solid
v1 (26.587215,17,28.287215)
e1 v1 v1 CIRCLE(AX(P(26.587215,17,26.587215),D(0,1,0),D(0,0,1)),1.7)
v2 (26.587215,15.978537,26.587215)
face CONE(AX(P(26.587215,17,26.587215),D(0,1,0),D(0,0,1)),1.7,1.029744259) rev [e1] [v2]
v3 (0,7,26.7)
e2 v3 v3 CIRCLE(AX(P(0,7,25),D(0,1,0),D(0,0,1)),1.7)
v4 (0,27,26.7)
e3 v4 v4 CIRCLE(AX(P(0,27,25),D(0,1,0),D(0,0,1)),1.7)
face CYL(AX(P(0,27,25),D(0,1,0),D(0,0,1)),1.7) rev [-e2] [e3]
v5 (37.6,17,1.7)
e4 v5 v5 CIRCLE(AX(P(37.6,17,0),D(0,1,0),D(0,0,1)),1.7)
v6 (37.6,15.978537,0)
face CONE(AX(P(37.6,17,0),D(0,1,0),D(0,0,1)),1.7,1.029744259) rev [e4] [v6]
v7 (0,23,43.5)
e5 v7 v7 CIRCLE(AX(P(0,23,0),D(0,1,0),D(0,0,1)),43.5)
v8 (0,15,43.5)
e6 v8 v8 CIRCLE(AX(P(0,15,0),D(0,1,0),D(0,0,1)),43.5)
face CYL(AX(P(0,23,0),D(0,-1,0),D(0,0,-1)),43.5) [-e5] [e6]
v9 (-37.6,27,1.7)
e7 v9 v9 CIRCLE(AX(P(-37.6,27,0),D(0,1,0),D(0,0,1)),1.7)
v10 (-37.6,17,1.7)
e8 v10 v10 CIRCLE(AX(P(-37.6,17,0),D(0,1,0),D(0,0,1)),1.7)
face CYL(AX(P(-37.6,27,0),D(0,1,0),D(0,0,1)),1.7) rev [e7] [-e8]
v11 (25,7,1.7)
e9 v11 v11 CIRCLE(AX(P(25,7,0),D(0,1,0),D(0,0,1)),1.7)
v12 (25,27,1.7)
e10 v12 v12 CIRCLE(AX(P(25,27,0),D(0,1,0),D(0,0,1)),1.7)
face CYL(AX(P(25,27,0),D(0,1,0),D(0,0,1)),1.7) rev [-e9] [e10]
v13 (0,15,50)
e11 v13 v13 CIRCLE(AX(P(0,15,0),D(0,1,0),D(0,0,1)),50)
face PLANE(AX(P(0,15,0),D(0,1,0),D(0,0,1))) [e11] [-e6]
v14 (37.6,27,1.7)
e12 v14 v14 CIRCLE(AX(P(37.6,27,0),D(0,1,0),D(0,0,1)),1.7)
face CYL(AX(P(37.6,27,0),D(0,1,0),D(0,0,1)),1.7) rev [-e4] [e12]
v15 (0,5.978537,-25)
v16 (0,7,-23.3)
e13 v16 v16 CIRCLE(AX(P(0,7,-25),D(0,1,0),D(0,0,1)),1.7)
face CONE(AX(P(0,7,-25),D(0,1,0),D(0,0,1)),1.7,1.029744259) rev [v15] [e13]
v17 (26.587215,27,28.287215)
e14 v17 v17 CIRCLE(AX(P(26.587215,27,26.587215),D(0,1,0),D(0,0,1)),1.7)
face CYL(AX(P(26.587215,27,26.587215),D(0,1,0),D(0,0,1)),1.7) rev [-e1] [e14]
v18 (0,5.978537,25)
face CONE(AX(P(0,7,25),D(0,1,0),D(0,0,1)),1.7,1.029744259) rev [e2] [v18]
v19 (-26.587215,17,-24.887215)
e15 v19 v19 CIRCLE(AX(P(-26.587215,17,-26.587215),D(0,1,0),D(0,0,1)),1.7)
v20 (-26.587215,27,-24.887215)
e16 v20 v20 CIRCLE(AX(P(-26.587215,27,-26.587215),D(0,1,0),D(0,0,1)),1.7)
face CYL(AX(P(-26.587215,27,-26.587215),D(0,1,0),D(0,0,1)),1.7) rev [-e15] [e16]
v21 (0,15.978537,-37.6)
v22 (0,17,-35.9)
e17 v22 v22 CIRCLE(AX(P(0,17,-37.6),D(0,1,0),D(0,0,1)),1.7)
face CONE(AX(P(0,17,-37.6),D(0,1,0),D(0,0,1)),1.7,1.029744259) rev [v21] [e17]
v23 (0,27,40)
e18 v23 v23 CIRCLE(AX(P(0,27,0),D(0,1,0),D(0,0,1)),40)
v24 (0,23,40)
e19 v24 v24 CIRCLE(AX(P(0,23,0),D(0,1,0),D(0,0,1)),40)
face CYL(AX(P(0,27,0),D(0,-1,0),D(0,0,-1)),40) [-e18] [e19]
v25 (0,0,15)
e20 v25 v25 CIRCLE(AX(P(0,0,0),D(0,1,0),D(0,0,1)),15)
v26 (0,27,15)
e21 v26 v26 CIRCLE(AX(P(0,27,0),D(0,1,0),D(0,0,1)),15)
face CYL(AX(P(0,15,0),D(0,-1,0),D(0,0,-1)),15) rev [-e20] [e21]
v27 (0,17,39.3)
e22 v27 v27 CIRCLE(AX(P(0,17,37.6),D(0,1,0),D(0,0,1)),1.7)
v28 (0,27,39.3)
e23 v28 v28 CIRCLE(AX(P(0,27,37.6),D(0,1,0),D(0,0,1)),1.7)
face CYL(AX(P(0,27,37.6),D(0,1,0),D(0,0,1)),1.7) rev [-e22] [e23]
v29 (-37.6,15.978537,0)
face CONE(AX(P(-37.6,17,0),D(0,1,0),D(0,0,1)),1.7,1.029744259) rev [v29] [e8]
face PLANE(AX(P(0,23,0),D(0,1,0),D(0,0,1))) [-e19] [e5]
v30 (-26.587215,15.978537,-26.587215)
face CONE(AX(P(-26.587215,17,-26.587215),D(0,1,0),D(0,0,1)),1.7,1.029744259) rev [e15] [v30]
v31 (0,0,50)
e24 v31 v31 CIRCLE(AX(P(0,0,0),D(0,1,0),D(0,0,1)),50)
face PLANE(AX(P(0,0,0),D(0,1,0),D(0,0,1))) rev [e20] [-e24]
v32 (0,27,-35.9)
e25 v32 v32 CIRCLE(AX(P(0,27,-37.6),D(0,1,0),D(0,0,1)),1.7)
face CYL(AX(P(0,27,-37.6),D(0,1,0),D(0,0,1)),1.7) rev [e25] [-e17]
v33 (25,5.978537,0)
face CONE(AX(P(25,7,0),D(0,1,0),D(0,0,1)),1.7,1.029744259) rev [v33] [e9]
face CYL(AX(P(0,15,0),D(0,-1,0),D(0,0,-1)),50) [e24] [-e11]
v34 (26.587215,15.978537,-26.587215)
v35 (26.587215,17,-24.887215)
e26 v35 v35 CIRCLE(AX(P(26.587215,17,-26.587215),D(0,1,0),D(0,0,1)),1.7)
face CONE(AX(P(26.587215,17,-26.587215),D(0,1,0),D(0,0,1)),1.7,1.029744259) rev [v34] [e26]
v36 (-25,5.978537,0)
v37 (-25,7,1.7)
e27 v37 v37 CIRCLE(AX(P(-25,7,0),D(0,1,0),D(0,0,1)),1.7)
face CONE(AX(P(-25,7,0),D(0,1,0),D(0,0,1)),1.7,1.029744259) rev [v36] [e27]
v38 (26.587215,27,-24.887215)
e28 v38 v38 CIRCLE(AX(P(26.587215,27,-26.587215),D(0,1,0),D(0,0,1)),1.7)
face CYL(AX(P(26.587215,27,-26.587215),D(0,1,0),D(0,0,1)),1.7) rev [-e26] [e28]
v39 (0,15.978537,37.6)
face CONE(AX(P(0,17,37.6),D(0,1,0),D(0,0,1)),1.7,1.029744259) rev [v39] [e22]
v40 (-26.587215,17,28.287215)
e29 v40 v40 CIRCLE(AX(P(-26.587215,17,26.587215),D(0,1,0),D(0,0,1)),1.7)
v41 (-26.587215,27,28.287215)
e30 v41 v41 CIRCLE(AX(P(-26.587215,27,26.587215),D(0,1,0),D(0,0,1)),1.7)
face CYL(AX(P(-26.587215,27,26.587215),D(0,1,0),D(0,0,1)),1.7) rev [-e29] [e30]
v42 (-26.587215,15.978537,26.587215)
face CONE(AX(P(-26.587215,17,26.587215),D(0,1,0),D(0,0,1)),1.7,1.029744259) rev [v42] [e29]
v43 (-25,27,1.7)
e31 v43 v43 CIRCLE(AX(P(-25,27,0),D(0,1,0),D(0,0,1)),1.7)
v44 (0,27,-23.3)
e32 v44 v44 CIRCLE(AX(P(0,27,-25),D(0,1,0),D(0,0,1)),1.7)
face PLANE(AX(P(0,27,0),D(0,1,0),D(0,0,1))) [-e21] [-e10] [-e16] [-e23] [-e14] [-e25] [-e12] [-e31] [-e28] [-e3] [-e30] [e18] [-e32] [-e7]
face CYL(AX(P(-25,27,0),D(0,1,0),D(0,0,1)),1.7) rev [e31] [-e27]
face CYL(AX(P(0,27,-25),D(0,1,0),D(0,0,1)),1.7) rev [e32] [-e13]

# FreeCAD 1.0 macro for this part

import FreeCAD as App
import Part
import Sketcher

V = App.Vector

doc = App.newDocument("Part")
body = doc.addObject("PartDesign::Body", "Body")

sketch1 = body.newObject("Sketcher::SketchObject", "Sketch")
sketch1.AttachmentSupport = (doc.getObject("XZ_Plane"), [""])
sketch1.MapMode = "FlatFace"
sketch1.addGeometry(Part.Circle(V(0, 0, 0), V(0, 0, 1), 50), False)
sketch1.addGeometry(Part.Circle(V(0, 0, 0), V(0, 0, 1), 15), False)
sketch1.addConstraint(Sketcher.Constraint("Coincident", 0, 3, -1, 1))
sketch1.addConstraint(Sketcher.Constraint("Coincident", 1, 3, -1, 1))
sketch1.addConstraint(Sketcher.Constraint("Diameter", 0, 100.0))
sketch1.addConstraint(Sketcher.Constraint("Diameter", 1, 30.0))
pad1 = body.newObject("PartDesign::Pad", "Pad")
pad1.Profile = sketch1
pad1.Length = 15
pad1.Reversed = True

sketch2 = body.newObject("Sketcher::SketchObject", "Sketch001")
sketch2.AttachmentSupport = (doc.getObject("XZ_Plane"), [""])
sketch2.MapMode = "FlatFace"
sketch2.AttachmentOffset = App.Placement(V(0, 0, -15), App.Rotation())
sketch2.addGeometry(Part.Circle(V(0, 0, 0), V(0, 0, 1), 43.5), False)
sketch2.addGeometry(Part.Circle(V(0, 0, 0), V(0, 0, 1), 15), False)
sketch2.addConstraint(Sketcher.Constraint("Coincident", 0, 3, -1, 1))
sketch2.addConstraint(Sketcher.Constraint("Coincident", 1, 3, -1, 1))
sketch2.addConstraint(Sketcher.Constraint("Diameter", 0, 87.0))
sketch2.addConstraint(Sketcher.Constraint("Diameter", 1, 30.0))
pad2 = body.newObject("PartDesign::Pad", "Pad001")
pad2.Profile = sketch2
pad2.Length = 8
pad2.Reversed = True

sketch3 = body.newObject("Sketcher::SketchObject", "Sketch002")
sketch3.AttachmentSupport = (doc.getObject("XZ_Plane"), [""])
sketch3.MapMode = "FlatFace"
sketch3.AttachmentOffset = App.Placement(V(0, 0, -23), App.Rotation())
sketch3.addGeometry(Part.Circle(V(0, 0, 0), V(0, 0, 1), 40), False)
sketch3.addGeometry(Part.Circle(V(0, 0, 0), V(0, 0, 1), 15), False)
sketch3.addConstraint(Sketcher.Constraint("Coincident", 0, 3, -1, 1))
sketch3.addConstraint(Sketcher.Constraint("Coincident", 1, 3, -1, 1))
sketch3.addConstraint(Sketcher.Constraint("Diameter", 0, 80.0))
sketch3.addConstraint(Sketcher.Constraint("Diameter", 1, 30.0))
pad3 = body.newObject("PartDesign::Pad", "Pad002")
pad3.Profile = sketch3
pad3.Length = 4
pad3.Reversed = True

sketch4 = body.newObject("Sketcher::SketchObject", "Sketch003")
sketch4.AttachmentSupport = (doc.getObject("XZ_Plane"), [""])
sketch4.MapMode = "FlatFace"
sketch4.AttachmentOffset = App.Placement(V(0, 0, -27), App.Rotation())
sketch4.addGeometry(Part.Circle(V(0, -37.6, 0), V(0, 0, 1), 1.7), False)
sketch4.addGeometry(Part.Circle(V(26.587215, -26.587215, 0), V(0, 0, 1), 1.7), False)
sketch4.addGeometry(Part.Circle(V(37.6, 0, 0), V(0, 0, 1), 1.7), False)
sketch4.addGeometry(Part.Circle(V(26.587215, 26.587215, 0), V(0, 0, 1), 1.7), False)
sketch4.addGeometry(Part.Circle(V(0, 37.6, 0), V(0, 0, 1), 1.7), False)
sketch4.addGeometry(Part.Circle(V(-26.587215, 26.587215, 0), V(0, 0, 1), 1.7), False)
sketch4.addGeometry(Part.Circle(V(-37.6, 0, 0), V(0, 0, 1), 1.7), False)
sketch4.addGeometry(Part.Circle(V(-26.587215, -26.587215, 0), V(0, 0, 1), 1.7), False)
sketch4.addConstraint(Sketcher.Constraint("Equal", 0, 1))
sketch4.addConstraint(Sketcher.Constraint("Equal", 1, 2))
sketch4.addConstraint(Sketcher.Constraint("Equal", 2, 3))
sketch4.addConstraint(Sketcher.Constraint("Equal", 3, 4))
sketch4.addConstraint(Sketcher.Constraint("Equal", 4, 5))
sketch4.addConstraint(Sketcher.Constraint("Equal", 5, 6))
sketch4.addConstraint(Sketcher.Constraint("Equal", 6, 7))
sketch4.addConstraint(Sketcher.Constraint("Symmetric", 0, 3, 4, 3, -1, 1))
sketch4.addConstraint(Sketcher.Constraint("Symmetric", 1, 3, 5, 3, -1, 1))
sketch4.addConstraint(Sketcher.Constraint("Symmetric", 2, 3, 6, 3, -1, 1))
sketch4.addConstraint(Sketcher.Constraint("Symmetric", 3, 3, 7, 3, -1, 1))
sketch4.addConstraint(Sketcher.Constraint("Symmetric", 3, 3, 5, 3, -2))
sketch4.addConstraint(Sketcher.Constraint("PointOnObject", 0, 3, -2))
sketch4.addConstraint(Sketcher.Constraint("PointOnObject", 2, 3, -1))
sketch4.addConstraint(Sketcher.Constraint("Diameter", 0, 3.4))
sketch4.addConstraint(Sketcher.Constraint("DistanceY", 0, 3, -1, 1, 37.6))
sketch4.addConstraint(Sketcher.Constraint("DistanceX", -1, 1, 2, 3, 37.6))
sketch4.addConstraint(Sketcher.Constraint("DistanceY", 1, 3, 3, 3, 53.17443))
sketch4.addConstraint(Sketcher.Constraint("DistanceX", 5, 3, 3, 3, 53.17443))
doc.recompute()
hole = body.newObject("PartDesign::Hole", "Hole")
hole.Profile = sketch4
hole.ThreadType = "None"
hole.Diameter = 3.4
hole.DepthType = "Dimension"
hole.Depth = 10
hole.DrillPoint = "Angled"
hole.DrillPointAngle = 118
hole.Reversed = True

sketch5 = body.newObject("Sketcher::SketchObject", "Sketch004")
sketch5.AttachmentSupport = (doc.getObject("XZ_Plane"), [""])
sketch5.MapMode = "FlatFace"
sketch5.AttachmentOffset = App.Placement(V(0, 0, -27), App.Rotation())
sketch5.addGeometry(Part.Circle(V(0, -25, 0), V(0, 0, 1), 1.7), False)
sketch5.addGeometry(Part.Circle(V(25, 0, 0), V(0, 0, 1), 1.7), False)
sketch5.addGeometry(Part.Circle(V(0, 25, 0), V(0, 0, 1), 1.7), False)
sketch5.addGeometry(Part.Circle(V(-25, 0, 0), V(0, 0, 1), 1.7), False)
sketch5.addConstraint(Sketcher.Constraint("Equal", 0, 1))
sketch5.addConstraint(Sketcher.Constraint("Equal", 1, 2))
sketch5.addConstraint(Sketcher.Constraint("Equal", 2, 3))
sketch5.addConstraint(Sketcher.Constraint("Symmetric", 0, 3, 2, 3, -1, 1))
sketch5.addConstraint(Sketcher.Constraint("Symmetric", 1, 3, 3, 3, -1, 1))
sketch5.addConstraint(Sketcher.Constraint("PointOnObject", 0, 3, -2))
sketch5.addConstraint(Sketcher.Constraint("PointOnObject", 1, 3, -1))
sketch5.addConstraint(Sketcher.Constraint("Diameter", 0, 3.4))
sketch5.addConstraint(Sketcher.Constraint("DistanceY", 0, 3, -1, 1, 25.0))
sketch5.addConstraint(Sketcher.Constraint("DistanceX", -1, 1, 1, 3, 25.0))
doc.recompute()
hole2 = body.newObject("PartDesign::Hole", "Hole001")
hole2.Profile = sketch5
hole2.ThreadType = "None"
hole2.Diameter = 3.4
hole2.DepthType = "Dimension"
hole2.Depth = 20
hole2.DrillPoint = "Angled"
hole2.DrillPointAngle = 118
hole2.Reversed = True

doc.recompute()
